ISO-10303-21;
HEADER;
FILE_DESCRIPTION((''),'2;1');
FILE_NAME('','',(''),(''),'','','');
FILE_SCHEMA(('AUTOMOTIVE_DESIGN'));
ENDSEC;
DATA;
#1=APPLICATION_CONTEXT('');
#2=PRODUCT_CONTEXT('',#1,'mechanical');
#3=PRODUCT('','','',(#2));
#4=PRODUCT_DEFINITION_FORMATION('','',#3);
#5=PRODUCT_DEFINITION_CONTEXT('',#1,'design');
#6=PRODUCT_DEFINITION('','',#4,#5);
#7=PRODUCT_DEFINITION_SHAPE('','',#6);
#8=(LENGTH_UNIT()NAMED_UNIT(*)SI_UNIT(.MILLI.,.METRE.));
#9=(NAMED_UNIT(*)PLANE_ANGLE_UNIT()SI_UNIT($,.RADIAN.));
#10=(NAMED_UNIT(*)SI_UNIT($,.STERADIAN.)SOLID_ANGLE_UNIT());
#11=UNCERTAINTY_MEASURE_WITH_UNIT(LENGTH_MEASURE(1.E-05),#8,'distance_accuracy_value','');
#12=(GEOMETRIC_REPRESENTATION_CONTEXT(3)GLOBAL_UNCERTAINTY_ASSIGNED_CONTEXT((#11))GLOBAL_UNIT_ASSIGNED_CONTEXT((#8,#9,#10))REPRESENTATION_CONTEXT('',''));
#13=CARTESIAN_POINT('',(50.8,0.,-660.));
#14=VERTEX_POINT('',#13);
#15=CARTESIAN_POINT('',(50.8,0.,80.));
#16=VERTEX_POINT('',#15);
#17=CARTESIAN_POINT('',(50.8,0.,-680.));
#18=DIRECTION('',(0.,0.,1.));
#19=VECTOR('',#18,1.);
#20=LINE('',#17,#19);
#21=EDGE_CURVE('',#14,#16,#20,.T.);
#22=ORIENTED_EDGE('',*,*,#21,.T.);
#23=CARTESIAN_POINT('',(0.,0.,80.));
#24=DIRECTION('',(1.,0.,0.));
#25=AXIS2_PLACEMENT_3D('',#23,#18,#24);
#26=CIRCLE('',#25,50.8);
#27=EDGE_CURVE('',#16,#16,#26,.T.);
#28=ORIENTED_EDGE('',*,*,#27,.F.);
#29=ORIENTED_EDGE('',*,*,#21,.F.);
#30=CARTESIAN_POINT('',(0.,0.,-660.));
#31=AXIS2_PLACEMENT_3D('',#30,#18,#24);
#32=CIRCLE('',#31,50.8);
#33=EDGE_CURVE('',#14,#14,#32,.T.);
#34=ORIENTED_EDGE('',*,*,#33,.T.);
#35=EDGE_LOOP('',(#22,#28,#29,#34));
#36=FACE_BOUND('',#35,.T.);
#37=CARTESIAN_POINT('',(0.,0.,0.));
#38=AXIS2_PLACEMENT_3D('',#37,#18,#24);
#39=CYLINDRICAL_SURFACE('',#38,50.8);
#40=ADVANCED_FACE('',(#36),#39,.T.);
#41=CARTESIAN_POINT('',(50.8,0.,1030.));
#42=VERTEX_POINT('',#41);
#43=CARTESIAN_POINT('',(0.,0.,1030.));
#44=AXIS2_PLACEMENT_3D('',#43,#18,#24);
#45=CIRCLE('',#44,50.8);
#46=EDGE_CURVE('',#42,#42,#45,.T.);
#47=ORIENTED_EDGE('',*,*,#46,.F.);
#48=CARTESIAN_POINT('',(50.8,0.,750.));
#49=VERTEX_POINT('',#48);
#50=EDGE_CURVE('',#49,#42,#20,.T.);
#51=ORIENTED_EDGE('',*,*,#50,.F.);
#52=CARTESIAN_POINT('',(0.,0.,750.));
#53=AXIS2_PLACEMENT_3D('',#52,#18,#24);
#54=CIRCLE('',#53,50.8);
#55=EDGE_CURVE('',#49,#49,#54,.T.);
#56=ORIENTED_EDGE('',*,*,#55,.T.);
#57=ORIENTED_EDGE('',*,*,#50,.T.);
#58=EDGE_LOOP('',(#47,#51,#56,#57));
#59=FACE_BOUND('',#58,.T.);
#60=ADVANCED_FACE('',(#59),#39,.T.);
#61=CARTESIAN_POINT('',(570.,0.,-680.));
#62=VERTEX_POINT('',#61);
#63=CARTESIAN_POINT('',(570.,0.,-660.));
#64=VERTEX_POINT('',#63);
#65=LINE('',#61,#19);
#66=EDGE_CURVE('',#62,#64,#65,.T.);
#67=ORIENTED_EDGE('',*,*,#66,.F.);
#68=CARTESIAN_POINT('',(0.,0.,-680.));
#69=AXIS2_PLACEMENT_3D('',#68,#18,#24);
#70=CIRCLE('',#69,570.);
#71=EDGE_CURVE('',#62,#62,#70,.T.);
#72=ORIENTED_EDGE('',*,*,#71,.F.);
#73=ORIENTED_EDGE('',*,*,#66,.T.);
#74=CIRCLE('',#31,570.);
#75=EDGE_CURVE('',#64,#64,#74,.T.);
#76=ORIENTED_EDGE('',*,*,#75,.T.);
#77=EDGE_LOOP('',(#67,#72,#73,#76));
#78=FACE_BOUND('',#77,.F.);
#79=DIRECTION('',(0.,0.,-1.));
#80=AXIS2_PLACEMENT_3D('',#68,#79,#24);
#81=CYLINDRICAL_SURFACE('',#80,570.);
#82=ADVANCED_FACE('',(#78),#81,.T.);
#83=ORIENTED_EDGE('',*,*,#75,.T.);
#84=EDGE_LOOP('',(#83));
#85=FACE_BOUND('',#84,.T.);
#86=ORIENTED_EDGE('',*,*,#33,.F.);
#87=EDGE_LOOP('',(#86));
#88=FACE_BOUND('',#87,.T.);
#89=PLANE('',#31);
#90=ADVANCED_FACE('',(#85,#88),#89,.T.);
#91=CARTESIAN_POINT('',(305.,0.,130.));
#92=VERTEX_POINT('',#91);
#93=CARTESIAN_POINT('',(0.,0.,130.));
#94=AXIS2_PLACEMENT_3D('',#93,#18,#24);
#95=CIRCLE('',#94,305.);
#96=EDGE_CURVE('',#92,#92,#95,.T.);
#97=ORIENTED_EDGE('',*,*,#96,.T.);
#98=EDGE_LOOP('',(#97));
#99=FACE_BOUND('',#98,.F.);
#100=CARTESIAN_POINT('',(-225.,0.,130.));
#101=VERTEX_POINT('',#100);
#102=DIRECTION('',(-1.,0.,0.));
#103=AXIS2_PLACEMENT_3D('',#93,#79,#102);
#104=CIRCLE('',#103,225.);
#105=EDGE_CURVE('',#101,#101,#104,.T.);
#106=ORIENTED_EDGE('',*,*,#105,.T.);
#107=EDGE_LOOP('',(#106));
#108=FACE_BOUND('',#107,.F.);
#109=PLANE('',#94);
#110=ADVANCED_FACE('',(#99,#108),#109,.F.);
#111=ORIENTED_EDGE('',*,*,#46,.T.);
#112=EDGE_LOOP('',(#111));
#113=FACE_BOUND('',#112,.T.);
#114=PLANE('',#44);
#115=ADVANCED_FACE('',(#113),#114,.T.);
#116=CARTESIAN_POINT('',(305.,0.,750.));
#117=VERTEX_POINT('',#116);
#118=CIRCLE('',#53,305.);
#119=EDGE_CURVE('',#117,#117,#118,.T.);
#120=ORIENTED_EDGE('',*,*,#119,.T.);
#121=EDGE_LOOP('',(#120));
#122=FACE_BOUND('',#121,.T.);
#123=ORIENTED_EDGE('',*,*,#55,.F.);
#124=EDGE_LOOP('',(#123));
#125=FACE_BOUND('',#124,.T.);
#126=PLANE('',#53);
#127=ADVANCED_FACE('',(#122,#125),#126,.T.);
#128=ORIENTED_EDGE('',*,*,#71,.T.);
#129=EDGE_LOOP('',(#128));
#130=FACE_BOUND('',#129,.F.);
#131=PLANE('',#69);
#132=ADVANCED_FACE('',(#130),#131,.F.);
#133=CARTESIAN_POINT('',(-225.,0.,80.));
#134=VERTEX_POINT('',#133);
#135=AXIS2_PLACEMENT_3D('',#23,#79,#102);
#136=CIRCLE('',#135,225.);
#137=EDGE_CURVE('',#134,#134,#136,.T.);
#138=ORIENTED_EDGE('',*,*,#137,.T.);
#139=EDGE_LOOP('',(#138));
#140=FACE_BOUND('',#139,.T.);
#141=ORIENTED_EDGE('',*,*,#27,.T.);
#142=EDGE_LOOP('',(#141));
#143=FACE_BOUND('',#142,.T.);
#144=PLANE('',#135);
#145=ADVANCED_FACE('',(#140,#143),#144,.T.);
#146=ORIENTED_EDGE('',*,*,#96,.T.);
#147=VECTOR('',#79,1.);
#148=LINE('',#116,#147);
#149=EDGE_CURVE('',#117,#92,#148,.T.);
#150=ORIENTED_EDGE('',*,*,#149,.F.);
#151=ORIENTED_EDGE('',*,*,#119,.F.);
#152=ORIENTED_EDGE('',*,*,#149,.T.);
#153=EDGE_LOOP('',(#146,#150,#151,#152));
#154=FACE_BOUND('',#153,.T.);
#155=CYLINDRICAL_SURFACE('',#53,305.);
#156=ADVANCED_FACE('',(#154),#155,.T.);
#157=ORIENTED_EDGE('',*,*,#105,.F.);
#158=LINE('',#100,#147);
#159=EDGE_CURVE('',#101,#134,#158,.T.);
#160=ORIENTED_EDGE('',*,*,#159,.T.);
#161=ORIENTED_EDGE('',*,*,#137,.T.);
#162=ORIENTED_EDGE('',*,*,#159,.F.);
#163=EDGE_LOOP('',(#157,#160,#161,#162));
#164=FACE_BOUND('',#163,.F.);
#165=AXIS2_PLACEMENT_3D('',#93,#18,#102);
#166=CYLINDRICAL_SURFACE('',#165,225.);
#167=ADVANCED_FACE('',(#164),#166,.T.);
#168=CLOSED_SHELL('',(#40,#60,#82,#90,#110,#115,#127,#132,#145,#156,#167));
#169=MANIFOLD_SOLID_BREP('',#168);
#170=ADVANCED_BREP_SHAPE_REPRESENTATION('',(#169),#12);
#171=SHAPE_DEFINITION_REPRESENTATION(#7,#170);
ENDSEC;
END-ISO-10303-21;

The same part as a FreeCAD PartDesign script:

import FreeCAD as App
import Part
import Sketcher

doc = App.newDocument("Part")
body = doc.addObject("PartDesign::Body", "Body")

# Sketch on XY plane
sketch1 = body.newObject("Sketcher::SketchObject", "Sketch")
sketch1.AttachmentSupport = (doc.getObject("XY_Plane"), [""])
sketch1.MapMode = "FlatFace"
sketch1.addGeometry(Part.Circle(App.Vector(0, 0, 0), App.Vector(0, 0, 1), 51), False)
sketch1.addConstraint(Sketcher.Constraint("Coincident", 0, 3, -1, 1))
sketch1.addConstraint(Sketcher.Constraint("Diameter", 0, 101.6))
pad1 = body.newObject("PartDesign::Pad", "Pad")
pad1.Profile = sketch1
pad1.Type = "TwoLengths"
pad1.Length = 1030
pad1.Length2 = 680

# Sketch on XY plane
sketch2 = body.newObject("Sketcher::SketchObject", "Sketch001")
sketch2.AttachmentSupport = (doc.getObject("XY_Plane"), [""])
sketch2.MapMode = "FlatFace"
sketch2.AttachmentOffset = App.Placement(App.Vector(0, 0, -680), App.Rotation())
sketch2.addGeometry(Part.Circle(App.Vector(0, 0, 0), App.Vector(0, 0, 1), 570), False)
sketch2.addConstraint(Sketcher.Constraint("Coincident", 0, 3, -1, 1))
sketch2.addConstraint(Sketcher.Constraint("Diameter", 0, 1140.0))
pad2 = body.newObject("PartDesign::Pad", "Pad001")
pad2.Profile = sketch2
pad2.Length = 20

# Sketch on XY plane
sketch3 = body.newObject("Sketcher::SketchObject", "Sketch002")
sketch3.AttachmentSupport = (doc.getObject("XY_Plane"), [""])
sketch3.MapMode = "FlatFace"
sketch3.AttachmentOffset = App.Placement(App.Vector(0, 0, 750), App.Rotation())
sketch3.addGeometry(Part.Circle(App.Vector(0, 0, 0), App.Vector(0, 0, 1), 305), False)
sketch3.addConstraint(Sketcher.Constraint("Coincident", 0, 3, -1, 1))
sketch3.addConstraint(Sketcher.Constraint("Diameter", 0, 610.0))
pad3 = body.newObject("PartDesign::Pad", "Pad002")
pad3.Profile = sketch3
pad3.Length = 620
pad3.Reversed = True

# Sketch on XY plane
sketch4 = body.newObject("Sketcher::SketchObject", "Sketch003")
sketch4.AttachmentSupport = (doc.getObject("XY_Plane"), [""])
sketch4.MapMode = "FlatFace"
sketch4.AttachmentOffset = App.Placement(App.Vector(0, 0, 130), App.Rotation())
sketch4.addGeometry(Part.Circle(App.Vector(0, 0, 0), App.Vector(0, 0, 1), 225), False)
sketch4.addConstraint(Sketcher.Constraint("Coincident", 0, 3, -1, 1))
sketch4.addConstraint(Sketcher.Constraint("Diameter", 0, 450.0))
pad4 = body.newObject("PartDesign::Pad", "Pad003")
pad4.Profile = sketch4
pad4.Length = 50
pad4.Reversed = True

doc.recompute()
